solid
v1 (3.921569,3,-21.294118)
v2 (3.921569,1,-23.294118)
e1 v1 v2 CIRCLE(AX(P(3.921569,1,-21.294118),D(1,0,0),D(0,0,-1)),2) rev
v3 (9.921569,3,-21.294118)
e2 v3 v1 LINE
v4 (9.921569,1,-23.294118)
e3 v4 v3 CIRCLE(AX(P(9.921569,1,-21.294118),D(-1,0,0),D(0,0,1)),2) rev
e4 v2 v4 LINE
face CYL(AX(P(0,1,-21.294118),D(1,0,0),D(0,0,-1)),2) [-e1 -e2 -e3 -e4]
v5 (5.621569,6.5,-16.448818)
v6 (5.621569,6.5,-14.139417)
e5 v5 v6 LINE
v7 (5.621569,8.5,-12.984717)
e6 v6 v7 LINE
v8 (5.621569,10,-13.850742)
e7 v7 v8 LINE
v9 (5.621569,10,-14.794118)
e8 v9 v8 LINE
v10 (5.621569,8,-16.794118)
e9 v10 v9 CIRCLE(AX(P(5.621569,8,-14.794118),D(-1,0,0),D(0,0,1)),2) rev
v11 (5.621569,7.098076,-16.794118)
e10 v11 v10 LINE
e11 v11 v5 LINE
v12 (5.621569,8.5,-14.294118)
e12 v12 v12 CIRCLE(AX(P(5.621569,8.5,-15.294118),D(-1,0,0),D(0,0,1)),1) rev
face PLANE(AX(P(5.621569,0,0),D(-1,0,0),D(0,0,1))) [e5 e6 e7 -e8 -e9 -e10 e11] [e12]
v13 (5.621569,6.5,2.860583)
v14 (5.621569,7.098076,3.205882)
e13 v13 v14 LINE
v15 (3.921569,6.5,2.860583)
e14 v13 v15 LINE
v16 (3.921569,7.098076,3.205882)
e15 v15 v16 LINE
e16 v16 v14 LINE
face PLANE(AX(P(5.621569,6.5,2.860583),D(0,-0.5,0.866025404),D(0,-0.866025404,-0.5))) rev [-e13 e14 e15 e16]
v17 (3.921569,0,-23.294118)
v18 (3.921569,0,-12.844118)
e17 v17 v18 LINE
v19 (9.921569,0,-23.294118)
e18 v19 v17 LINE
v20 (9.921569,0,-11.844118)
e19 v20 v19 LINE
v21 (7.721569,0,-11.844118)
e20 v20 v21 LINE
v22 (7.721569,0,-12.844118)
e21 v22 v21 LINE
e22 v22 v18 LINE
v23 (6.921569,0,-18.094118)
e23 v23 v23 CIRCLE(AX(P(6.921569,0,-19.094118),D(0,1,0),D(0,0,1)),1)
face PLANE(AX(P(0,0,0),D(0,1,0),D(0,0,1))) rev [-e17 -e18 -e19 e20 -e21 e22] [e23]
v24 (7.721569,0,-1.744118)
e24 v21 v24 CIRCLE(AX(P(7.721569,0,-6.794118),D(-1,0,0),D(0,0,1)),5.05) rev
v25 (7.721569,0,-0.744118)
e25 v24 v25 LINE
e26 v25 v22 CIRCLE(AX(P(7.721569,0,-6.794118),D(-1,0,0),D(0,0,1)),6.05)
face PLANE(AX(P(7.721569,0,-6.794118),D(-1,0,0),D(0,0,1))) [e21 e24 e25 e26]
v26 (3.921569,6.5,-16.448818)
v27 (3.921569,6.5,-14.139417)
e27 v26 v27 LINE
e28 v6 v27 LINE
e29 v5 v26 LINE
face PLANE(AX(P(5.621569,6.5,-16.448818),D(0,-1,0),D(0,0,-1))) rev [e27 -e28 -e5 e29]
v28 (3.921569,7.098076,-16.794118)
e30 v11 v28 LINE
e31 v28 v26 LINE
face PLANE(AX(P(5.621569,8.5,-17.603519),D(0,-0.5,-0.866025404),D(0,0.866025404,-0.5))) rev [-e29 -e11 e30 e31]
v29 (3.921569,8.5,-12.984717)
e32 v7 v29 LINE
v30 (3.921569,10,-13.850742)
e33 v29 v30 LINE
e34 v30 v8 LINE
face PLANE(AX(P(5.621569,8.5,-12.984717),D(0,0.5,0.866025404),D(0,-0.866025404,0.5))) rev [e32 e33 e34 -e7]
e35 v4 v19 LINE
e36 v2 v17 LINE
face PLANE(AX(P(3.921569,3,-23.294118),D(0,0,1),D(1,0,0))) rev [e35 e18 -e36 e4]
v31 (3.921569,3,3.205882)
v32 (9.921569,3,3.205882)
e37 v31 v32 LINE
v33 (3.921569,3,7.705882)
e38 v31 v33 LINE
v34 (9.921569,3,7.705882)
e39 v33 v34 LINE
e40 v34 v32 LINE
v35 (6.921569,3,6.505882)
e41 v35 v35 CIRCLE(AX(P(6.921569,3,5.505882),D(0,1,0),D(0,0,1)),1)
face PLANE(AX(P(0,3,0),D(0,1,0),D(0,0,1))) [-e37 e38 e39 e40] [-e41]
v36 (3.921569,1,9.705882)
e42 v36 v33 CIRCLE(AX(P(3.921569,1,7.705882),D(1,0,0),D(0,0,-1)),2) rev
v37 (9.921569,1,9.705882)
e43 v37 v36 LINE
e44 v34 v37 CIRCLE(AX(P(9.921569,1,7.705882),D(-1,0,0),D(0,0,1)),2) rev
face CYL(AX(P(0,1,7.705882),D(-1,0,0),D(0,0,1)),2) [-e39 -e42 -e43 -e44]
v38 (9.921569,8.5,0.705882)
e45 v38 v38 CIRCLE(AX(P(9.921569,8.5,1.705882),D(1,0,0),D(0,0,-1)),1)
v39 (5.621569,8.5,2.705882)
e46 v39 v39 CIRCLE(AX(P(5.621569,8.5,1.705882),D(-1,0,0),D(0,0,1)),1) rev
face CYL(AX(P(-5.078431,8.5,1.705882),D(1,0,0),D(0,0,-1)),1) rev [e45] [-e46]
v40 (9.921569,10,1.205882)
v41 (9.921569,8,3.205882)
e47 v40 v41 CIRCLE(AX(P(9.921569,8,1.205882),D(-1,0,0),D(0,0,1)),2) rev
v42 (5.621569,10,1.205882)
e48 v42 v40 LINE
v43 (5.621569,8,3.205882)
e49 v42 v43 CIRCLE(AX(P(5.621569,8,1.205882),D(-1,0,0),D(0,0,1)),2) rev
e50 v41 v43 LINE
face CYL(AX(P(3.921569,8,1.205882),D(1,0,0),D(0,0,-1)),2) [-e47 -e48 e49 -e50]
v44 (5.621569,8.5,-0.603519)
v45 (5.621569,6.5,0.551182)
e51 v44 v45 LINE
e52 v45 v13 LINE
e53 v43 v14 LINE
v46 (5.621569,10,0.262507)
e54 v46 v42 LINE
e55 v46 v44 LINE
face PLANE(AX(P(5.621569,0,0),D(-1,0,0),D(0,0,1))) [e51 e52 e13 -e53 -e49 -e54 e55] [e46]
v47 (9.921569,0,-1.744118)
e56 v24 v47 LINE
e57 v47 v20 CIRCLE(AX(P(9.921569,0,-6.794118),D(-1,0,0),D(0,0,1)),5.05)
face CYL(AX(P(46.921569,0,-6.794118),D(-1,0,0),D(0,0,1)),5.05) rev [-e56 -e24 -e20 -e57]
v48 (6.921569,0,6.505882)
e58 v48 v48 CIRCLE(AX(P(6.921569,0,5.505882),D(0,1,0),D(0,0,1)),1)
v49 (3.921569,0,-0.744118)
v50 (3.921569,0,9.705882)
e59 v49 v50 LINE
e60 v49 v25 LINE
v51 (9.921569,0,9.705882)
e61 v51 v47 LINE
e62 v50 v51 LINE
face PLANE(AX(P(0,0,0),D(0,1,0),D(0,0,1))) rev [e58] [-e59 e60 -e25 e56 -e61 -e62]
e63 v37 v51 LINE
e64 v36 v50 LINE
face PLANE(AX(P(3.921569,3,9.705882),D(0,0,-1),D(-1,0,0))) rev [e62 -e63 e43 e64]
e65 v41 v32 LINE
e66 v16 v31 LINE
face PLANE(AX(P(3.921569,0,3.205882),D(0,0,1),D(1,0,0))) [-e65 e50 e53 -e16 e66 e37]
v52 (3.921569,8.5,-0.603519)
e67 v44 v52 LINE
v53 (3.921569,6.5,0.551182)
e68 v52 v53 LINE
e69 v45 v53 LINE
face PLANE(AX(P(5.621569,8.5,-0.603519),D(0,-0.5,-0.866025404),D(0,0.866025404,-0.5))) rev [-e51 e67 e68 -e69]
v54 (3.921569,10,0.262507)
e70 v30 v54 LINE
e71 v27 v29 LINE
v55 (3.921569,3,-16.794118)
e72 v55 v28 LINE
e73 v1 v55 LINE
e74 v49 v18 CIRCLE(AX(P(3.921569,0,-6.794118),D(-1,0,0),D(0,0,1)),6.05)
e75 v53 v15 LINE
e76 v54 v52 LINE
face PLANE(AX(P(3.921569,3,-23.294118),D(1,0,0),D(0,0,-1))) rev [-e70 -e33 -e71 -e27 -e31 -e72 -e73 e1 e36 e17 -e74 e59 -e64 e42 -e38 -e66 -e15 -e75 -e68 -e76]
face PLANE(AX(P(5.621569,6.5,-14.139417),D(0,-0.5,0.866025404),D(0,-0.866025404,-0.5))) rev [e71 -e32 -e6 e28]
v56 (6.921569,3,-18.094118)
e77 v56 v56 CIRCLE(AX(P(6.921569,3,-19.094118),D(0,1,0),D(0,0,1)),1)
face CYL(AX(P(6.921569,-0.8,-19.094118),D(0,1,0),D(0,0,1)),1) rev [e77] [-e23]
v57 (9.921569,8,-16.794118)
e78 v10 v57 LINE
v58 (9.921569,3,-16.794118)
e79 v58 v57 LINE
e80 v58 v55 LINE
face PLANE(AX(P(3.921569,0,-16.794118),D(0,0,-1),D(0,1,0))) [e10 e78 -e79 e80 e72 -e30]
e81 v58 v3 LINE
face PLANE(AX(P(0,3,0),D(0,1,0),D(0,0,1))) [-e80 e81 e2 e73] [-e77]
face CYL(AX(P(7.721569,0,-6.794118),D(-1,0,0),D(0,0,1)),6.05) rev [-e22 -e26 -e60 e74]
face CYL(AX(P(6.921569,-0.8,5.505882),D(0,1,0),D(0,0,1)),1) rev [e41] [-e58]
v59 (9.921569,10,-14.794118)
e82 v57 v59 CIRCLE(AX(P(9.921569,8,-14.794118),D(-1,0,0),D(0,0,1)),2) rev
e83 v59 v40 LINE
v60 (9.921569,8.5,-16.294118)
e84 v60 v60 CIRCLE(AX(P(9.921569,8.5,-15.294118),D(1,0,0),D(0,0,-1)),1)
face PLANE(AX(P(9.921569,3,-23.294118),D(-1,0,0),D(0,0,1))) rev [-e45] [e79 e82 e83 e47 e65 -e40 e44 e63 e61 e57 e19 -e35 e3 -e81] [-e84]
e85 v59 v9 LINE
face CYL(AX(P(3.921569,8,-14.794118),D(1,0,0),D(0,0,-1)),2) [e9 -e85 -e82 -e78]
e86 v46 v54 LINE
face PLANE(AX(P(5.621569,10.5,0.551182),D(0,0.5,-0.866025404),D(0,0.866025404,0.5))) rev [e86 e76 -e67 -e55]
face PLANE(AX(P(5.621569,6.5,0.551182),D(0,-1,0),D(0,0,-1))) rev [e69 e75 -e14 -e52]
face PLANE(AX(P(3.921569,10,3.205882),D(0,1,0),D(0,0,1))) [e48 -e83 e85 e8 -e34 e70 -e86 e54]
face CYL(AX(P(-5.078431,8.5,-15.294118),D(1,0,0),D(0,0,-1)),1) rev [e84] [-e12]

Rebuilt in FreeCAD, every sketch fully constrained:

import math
import FreeCAD as App
import Part
import Sketcher
Q = App.Units.Quantity


def edges_at(feature, points):
    """Names of the edges that pass closest to the given points."""
    edges = feature.Shape.Edges
    near = lambda p: min(range(len(edges)), key=lambda i: edges[i].distToShape(Part.Vertex(*p))[0])
    return sorted({f"Edge{near(p) + 1}" for p in points})


def add_polygon(sketch, points):
    """Adds a closed chain of lines whose ends are joined by coincident constraints."""
    first, n = sketch.GeometryCount, len(points)
    for a, b in zip(points, points[1:] + points[:1]):
        sketch.addGeometry(Part.LineSegment(App.Vector(*a, 0), App.Vector(*b, 0)), False)
    for i in range(n):
        sketch.addConstraint(Sketcher.Constraint("Coincident", first + i, 2, first + (i + 1) % n, 1))

doc = App.newDocument("Part")
body = doc.addObject("PartDesign::Body", "Body")

# Sketch on XZ plane
sketch1 = body.newObject("Sketcher::SketchObject", "Sketch")
sketch1.AttachmentSupport = (doc.getObject("XZ_Plane"), [""])
sketch1.MapMode = "FlatFace"
add_polygon(sketch1, [(3.921569, -23.294118), (3.921569, 9.705882), (9.921569, 9.705882), (9.921569, -23.294118)])  # lines 0-3
sketch1.addConstraint([
    Sketcher.Constraint("Vertical", 0),
    Sketcher.Constraint("Horizontal", 1),
    Sketcher.Constraint("Vertical", 2),
    Sketcher.Constraint("Horizontal", 3),
    Sketcher.Constraint("DistanceX", 1, 1, 1, 2, Q("6 mm")),
    Sketcher.Constraint("DistanceY", 0, 1, 0, 2, Q("33 mm")),
    Sketcher.Constraint("DistanceX", -1, 1, 0, 2, Q("3.921569 mm")),
    Sketcher.Constraint("DistanceY", -1, 1, 0, 2, Q("9.705882 mm")),
])
pad1 = body.newObject("PartDesign::Pad", "Pad")
pad1.Profile = sketch1
pad1.Length = 3
pad1.Reversed = True

# Sketch on YZ plane
sketch2 = body.newObject("Sketcher::SketchObject", "Sketch001")
sketch2.AttachmentSupport = (doc.getObject("YZ_Plane"), [""])
sketch2.MapMode = "FlatFace"
sketch2.AttachmentOffset = App.Placement(App.Vector(0, 0, 9.921569), App.Rotation())
add_polygon(sketch2, [(10, 3.205882), (0, 3.205882), (0, -16.794118), (10, -16.794118)])  # lines 0-3
sketch2.addConstraint([
    Sketcher.Constraint("Horizontal", 0),
    Sketcher.Constraint("Vertical", 1),
    Sketcher.Constraint("Horizontal", 2),
    Sketcher.Constraint("Vertical", 3),
    Sketcher.Constraint("PointOnObject", 0, 2, -2),
    Sketcher.Constraint("DistanceX", 0, 2, 0, 1, Q("10 mm")),
    Sketcher.Constraint("DistanceY", 1, 2, 1, 1, Q("20 mm")),
    Sketcher.Constraint("DistanceY", -1, 1, 0, 2, Q("3.205882 mm")),
])
pad2 = body.newObject("PartDesign::Pad", "Pad001")
pad2.Profile = sketch2
pad2.Length = 6
pad2.Reversed = True
doc.recompute()

fillet = body.newObject("PartDesign::Fillet", "Fillet")
fillet.Base = (pad2, edges_at(pad2, [(6.922, 10, 3.206), (6.922, 10, -16.794)]))
fillet.Radius = 2

# Sketch on YZ plane
sketch3 = body.newObject("Sketcher::SketchObject", "Sketch002")
sketch3.AttachmentSupport = (doc.getObject("YZ_Plane"), [""])
sketch3.MapMode = "FlatFace"
sketch3.AttachmentOffset = App.Placement(App.Vector(0, 0, 3.921569), App.Rotation())
sketch3.addGeometry([
    Part.LineSegment(App.Vector(0, -11.844118, 0), App.Vector(0, -1.744118, 0)),
    Part.ArcOfCircle(Part.Circle(App.Vector(0, -6.794118, 0), App.Vector(0, 0, 1), 5.05), math.radians(-90), math.radians(90)),
], False)
sketch3.addConstraint([
    Sketcher.Constraint("Coincident", 0, 1, 1, 1),
    Sketcher.Constraint("Coincident", 1, 2, 0, 2),
    Sketcher.Constraint("Vertical", 0),
    Sketcher.Constraint("PointOnObject", 1, 3, -2),
    Sketcher.Constraint("PointOnObject", 0, 1, -2),
    Sketcher.Constraint("Radius", 1, Q("5.05 mm")),
    Sketcher.Constraint("DistanceY", 1, 3, -1, 1, Q("6.794118 mm")),
])
pocket1 = body.newObject("PartDesign::Pocket", "Pocket")
pocket1.Profile = sketch3
pocket1.Length = 43
pocket1.Reversed = True

# Sketch on YZ plane
sketch4 = body.newObject("Sketcher::SketchObject", "Sketch003")
sketch4.AttachmentSupport = (doc.getObject("YZ_Plane"), [""])
sketch4.MapMode = "FlatFace"
sketch4.AttachmentOffset = App.Placement(App.Vector(0, 0, 3.921569), App.Rotation())
sketch4.addGeometry(Part.Circle(App.Vector(0, -6.794118, 0), App.Vector(0, 0, 1), 6.05), False)
sketch4.addConstraint([
    Sketcher.Constraint("PointOnObject", 0, 3, -2),
    Sketcher.Constraint("Diameter", 0, Q("12.1 mm")),
    Sketcher.Constraint("DistanceY", 0, 3, -1, 1, Q("6.794118 mm")),
])
pocket2 = body.newObject("PartDesign::Pocket", "Pocket001")
pocket2.Profile = sketch4
pocket2.Length = 3.8
pocket2.Reversed = True
doc.recompute()

fillet2 = body.newObject("PartDesign::Fillet", "Fillet001")
fillet2.Base = (pocket2, edges_at(pocket2, [(6.922, 3, -23.294), (6.922, 3, 9.706)]))
fillet2.Radius = 2

# Sketch on XZ plane
sketch5 = body.newObject("Sketcher::SketchObject", "Sketch004")
sketch5.AttachmentSupport = (doc.getObject("XZ_Plane"), [""])
sketch5.MapMode = "FlatFace"
sketch5.AttachmentOffset = App.Placement(App.Vector(0, 0, -3), App.Rotation())
sketch5.addGeometry([
    Part.Circle(App.Vector(6.921569, 5.505882, 0), App.Vector(0, 0, 1), 1),
    Part.Circle(App.Vector(6.921569, -19.094118, 0), App.Vector(0, 0, 1), 1),
], False)
sketch5.addConstraint([
    Sketcher.Constraint("Equal", 0, 1),
    Sketcher.Constraint("Vertical", 0, 3, 1, 3),
    Sketcher.Constraint("Diameter", 0, Q("2 mm")),
    Sketcher.Constraint("DistanceY", 1, 3, 0, 3, Q("24.6 mm")),
    Sketcher.Constraint("DistanceX", -1, 1, 0, 3, Q("6.921569 mm")),
    Sketcher.Constraint("DistanceY", -1, 1, 0, 3, Q("5.505882 mm")),
])
pocket3 = body.newObject("PartDesign::Pocket", "Pocket002")
pocket3.Profile = sketch5
pocket3.Length = 3.8
pocket3.Reversed = True

# Sketch on YZ plane
sketch6 = body.newObject("Sketcher::SketchObject", "Sketch005")
sketch6.AttachmentSupport = (doc.getObject("YZ_Plane"), [""])
sketch6.MapMode = "FlatFace"
sketch6.AttachmentOffset = App.Placement(App.Vector(0, 0, 9.921569), App.Rotation())
sketch6.addGeometry([
    Part.Circle(App.Vector(8.5, 1.705882, 0), App.Vector(0, 0, 1), 1),
    Part.Circle(App.Vector(8.5, -15.294118, 0), App.Vector(0, 0, 1), 1),
], False)
sketch6.addConstraint([
    Sketcher.Constraint("Equal", 0, 1),
    Sketcher.Constraint("Vertical", 0, 3, 1, 3),
    Sketcher.Constraint("Diameter", 0, Q("2 mm")),
    Sketcher.Constraint("DistanceY", 1, 3, 0, 3, Q("17 mm")),
    Sketcher.Constraint("DistanceX", -1, 1, 0, 3, Q("8.5 mm")),
    Sketcher.Constraint("DistanceY", -1, 1, 0, 3, Q("1.705882 mm")),
])
pocket4 = body.newObject("PartDesign::Pocket", "Pocket003")
pocket4.Profile = sketch6
pocket4.Length = 15

# Sketch on YZ plane
sketch7 = body.newObject("Sketcher::SketchObject", "Sketch006")
sketch7.AttachmentSupport = (doc.getObject("YZ_Plane"), [""])
sketch7.MapMode = "FlatFace"
sketch7.AttachmentOffset = App.Placement(App.Vector(0, 0, 3.921569), App.Rotation())
add_polygon(sketch7, [(8.5, -0.603519), (6.5, 0.551182), (6.5, 2.860583), (8.5, 4.015283), (10.5, 2.860583), (10.5, 0.551182)])  # lines 0-5
add_polygon(sketch7, [(8.5, -17.603519), (6.5, -16.448818), (6.5, -14.139417), (8.5, -12.984717), (10.5, -14.139417), (10.5, -16.448818)])  # lines 6-11
sketch7.addConstraint([
    Sketcher.Constraint("Vertical", 1),
    Sketcher.Constraint("Vertical", 4),
    Sketcher.Constraint("Vertical", 7),
    Sketcher.Constraint("Vertical", 10),
    Sketcher.Constraint("Parallel", 0, 3),
    Sketcher.Constraint("Parallel", 2, 5),
    Sketcher.Constraint("Parallel", 3, 6),
    Sketcher.Constraint("Parallel", 5, 8),
    Sketcher.Constraint("Parallel", 6, 9),
    Sketcher.Constraint("Parallel", 8, 11),
    Sketcher.Constraint("Horizontal", 1, 2, 3, 2),
    Sketcher.Constraint("Horizontal", 0, 2, 4, 2),
    Sketcher.Constraint("Horizontal", 7, 2, 9, 2),
    Sketcher.Constraint("Horizontal", 6, 2, 10, 2),
    Sketcher.Constraint("Vertical", 2, 2, 5, 2),
    Sketcher.Constraint("Vertical", 1, 2, 6, 2),
    Sketcher.Constraint("Vertical", 5, 2, 8, 2),
    Sketcher.Constraint("Equal", 4, 7),
    Sketcher.Constraint("Angle", 0, Q("150 deg")),
    Sketcher.Constraint("DistanceX", 1, 2, 2, 2, Q("2 mm")),
    Sketcher.Constraint("DistanceY", 6, 2, 0, 2, Q("17 mm")),
    Sketcher.Constraint("DistanceX", -1, 1, 0, 2, Q("6.5 mm")),
    Sketcher.Constraint("DistanceY", 1, 1, 1, 2, Q("2.309401 mm")),
    Sketcher.Constraint("DistanceY", -1, 1, 0, 2, Q("0.551182 mm")),
])
pocket5 = body.newObject("PartDesign::Pocket", "Pocket004")
pocket5.Profile = sketch7
pocket5.Length = 1.7
pocket5.Reversed = True

doc.recompute()
